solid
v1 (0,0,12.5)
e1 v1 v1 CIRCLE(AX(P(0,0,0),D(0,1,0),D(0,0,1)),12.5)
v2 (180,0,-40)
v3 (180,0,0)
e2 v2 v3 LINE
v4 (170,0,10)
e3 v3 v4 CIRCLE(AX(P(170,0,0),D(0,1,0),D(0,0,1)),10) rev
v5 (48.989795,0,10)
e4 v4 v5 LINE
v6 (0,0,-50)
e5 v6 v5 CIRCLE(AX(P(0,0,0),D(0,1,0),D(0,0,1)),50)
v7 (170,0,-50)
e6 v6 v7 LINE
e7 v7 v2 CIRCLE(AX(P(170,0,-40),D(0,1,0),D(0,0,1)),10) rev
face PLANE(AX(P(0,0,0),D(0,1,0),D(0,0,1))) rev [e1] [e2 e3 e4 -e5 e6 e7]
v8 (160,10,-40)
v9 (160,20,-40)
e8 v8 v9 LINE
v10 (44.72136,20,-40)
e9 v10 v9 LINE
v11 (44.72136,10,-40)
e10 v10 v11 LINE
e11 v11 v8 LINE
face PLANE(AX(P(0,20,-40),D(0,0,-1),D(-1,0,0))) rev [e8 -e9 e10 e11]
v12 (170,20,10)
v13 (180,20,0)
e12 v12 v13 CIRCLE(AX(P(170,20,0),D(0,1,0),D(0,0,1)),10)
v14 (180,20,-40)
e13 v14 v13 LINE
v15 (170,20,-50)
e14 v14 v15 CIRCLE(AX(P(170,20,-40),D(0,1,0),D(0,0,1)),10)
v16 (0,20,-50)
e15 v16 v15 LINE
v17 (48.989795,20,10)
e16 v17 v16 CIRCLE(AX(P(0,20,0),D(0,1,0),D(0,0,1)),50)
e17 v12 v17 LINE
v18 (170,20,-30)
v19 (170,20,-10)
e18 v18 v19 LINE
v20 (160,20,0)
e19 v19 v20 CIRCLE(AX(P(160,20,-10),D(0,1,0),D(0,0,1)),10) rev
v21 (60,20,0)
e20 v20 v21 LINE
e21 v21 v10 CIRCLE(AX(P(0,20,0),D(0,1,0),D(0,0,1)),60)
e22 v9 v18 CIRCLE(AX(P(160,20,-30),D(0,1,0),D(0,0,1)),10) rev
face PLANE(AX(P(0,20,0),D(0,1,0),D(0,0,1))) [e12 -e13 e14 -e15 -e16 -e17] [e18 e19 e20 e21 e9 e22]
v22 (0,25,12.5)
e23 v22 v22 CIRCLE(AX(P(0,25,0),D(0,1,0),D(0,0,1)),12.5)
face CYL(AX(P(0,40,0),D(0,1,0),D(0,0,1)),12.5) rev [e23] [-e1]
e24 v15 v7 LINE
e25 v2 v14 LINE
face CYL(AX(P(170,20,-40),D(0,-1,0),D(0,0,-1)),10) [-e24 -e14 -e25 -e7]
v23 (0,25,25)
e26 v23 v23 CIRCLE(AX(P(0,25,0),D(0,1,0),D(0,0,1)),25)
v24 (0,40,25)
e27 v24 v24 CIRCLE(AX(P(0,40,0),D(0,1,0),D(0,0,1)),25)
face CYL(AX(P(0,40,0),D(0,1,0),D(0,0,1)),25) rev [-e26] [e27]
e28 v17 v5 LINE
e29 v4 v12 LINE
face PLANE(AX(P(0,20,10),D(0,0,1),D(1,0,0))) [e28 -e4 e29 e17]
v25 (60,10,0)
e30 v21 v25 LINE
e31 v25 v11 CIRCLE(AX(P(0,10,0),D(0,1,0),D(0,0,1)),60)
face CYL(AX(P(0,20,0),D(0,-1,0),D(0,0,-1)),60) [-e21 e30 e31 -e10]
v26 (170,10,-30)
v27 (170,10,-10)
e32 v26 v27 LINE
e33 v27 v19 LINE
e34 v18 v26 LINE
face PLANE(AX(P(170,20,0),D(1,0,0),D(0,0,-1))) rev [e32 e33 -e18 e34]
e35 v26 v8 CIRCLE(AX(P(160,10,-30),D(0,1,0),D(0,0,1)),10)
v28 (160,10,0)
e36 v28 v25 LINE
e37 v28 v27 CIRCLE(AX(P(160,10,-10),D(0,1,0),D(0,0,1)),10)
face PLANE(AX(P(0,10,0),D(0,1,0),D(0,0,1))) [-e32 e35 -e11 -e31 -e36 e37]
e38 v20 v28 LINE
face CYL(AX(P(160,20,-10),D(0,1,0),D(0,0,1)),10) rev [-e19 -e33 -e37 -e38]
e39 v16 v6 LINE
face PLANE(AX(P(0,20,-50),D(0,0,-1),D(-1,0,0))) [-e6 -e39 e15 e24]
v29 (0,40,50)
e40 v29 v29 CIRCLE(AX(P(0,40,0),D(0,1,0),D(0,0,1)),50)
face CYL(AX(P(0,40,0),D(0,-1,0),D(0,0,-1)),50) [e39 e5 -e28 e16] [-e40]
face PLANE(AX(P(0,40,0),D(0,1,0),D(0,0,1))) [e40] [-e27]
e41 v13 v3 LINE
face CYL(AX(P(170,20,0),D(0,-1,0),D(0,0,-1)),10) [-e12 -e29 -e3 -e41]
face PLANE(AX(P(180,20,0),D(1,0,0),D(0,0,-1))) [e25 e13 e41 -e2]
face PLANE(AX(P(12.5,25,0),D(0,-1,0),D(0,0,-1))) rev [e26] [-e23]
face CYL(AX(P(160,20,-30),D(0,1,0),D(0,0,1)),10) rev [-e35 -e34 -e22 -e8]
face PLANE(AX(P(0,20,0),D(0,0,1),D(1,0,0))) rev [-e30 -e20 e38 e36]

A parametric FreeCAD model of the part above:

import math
import FreeCAD as App
import Part
import Sketcher

V = App.Vector
Q = App.Units.Quantity


def edges_at(feature, points):
    """Names of the edges that pass closest to the given points."""
    edges = feature.Shape.Edges
    near = lambda p: min(range(len(edges)), key=lambda i: edges[i].distToShape(Part.Vertex(*p))[0])
    return sorted({f"Edge{near(p) + 1}" for p in points})

doc = App.newDocument("Part")
body = doc.addObject("PartDesign::Body", "Body")

# Sketch on XZ plane
sketch1 = body.newObject("Sketcher::SketchObject", "Sketch")
sketch1.AttachmentSupport = (doc.getObject("XZ_Plane"), [""])
sketch1.MapMode = "FlatFace"
sketch1.addGeometry([
    Part.LineSegment(V(180, -50, 0), V(0, -50, 0)),  # 0
    Part.ArcOfCircle(Part.Circle(V(0, 0, 0), V(0, 0, 1), 50), math.radians(-90), math.radians(0)),  # 1
    Part.ArcOfCircle(Part.Circle(V(0, 0, 0), V(0, 0, 1), 50), math.radians(0), math.radians(11.54)),  # 2
    Part.LineSegment(V(49, 10, 0), V(180, 10, 0)),  # 3
    Part.LineSegment(V(180, 10, 0), V(180, -50, 0)),  # 4
    Part.LineSegment(V(170, 0, 0), V(60, 0, 0)),  # 5
    Part.ArcOfCircle(Part.Circle(V(0, 0, 0), V(0, 0, 1), 60), math.radians(-42), math.radians(0)),  # 6
    Part.LineSegment(V(45, -40, 0), V(170, -40, 0)),  # 7
    Part.LineSegment(V(170, -40, 0), V(170, 0, 0)),  # 8
], False)
sketch1.addConstraint([
    Sketcher.Constraint("Tangent", 0, 2, 1, 1),
    Sketcher.Constraint("Tangent", 1, 2, 2, 1),
    Sketcher.Constraint("Coincident", 2, 2, 3, 1),
    Sketcher.Constraint("Coincident", 3, 2, 4, 1),
    Sketcher.Constraint("Coincident", 4, 2, 0, 1),
    Sketcher.Constraint("Coincident", 5, 2, 6, 2),
    Sketcher.Constraint("Coincident", 6, 1, 7, 1),
    Sketcher.Constraint("Coincident", 7, 2, 8, 1),
    Sketcher.Constraint("Coincident", 8, 2, 5, 1),
    Sketcher.Constraint("Horizontal", 0),
    Sketcher.Constraint("Horizontal", 3),
    Sketcher.Constraint("Vertical", 4),
    Sketcher.Constraint("Horizontal", 5),
    Sketcher.Constraint("Horizontal", 7),
    Sketcher.Constraint("Vertical", 8),
    Sketcher.Constraint("Coincident", 1, 3, -1, 1),
    Sketcher.Constraint("Coincident", 6, 3, -1, 1),
    Sketcher.Constraint("Equal", 1, 2),
    Sketcher.Constraint("PointOnObject", 1, 2, -1),
    Sketcher.Constraint("PointOnObject", 5, 2, -1),
    Sketcher.Constraint("Radius", 1, Q("50 mm")),
    Sketcher.Constraint("Radius", 6, Q("60 mm")),
    Sketcher.Constraint("DistanceX", 0, 2, 0, 1, Q("180 mm")),
    Sketcher.Constraint("DistanceX", 5, 2, 5, 1, Q("110 mm")),
    Sketcher.Constraint("DistanceY", 4, 2, 4, 1, Q("60 mm")),
    Sketcher.Constraint("DistanceY", 8, 1, 8, 2, Q("40 mm")),
])
pad1 = body.newObject("PartDesign::Pad", "Pad")
pad1.Profile = sketch1
pad1.Length = 20
pad1.Reversed = True

# Sketch on XZ plane
sketch2 = body.newObject("Sketcher::SketchObject", "Sketch001")
sketch2.AttachmentSupport = (doc.getObject("XZ_Plane"), [""])
sketch2.MapMode = "FlatFace"
sketch2.addGeometry(Part.Circle(V(0, 0, 0), V(0, 0, 1), 50), False)
sketch2.addConstraint([
    Sketcher.Constraint("Coincident", 0, 3, -1, 1),
    Sketcher.Constraint("Diameter", 0, Q("100 mm")),
])
pad2 = body.newObject("PartDesign::Pad", "Pad001")
pad2.Profile = sketch2
pad2.Length = 40
pad2.Reversed = True

# Sketch on XZ plane
sketch3 = body.newObject("Sketcher::SketchObject", "Sketch002")
sketch3.AttachmentSupport = (doc.getObject("XZ_Plane"), [""])
sketch3.MapMode = "FlatFace"
sketch3.addGeometry([
    Part.LineSegment(V(170, -40, 0), V(45, -40, 0)),
    Part.ArcOfCircle(Part.Circle(V(0, 0, 0), V(0, 0, 1), 60), math.radians(-42), math.radians(0)),
    Part.LineSegment(V(60, 0, 0), V(170, 0, 0)),
    Part.LineSegment(V(170, 0, 0), V(170, -40, 0)),
], False)
sketch3.addConstraint([
    Sketcher.Constraint("Coincident", 0, 2, 1, 1),
    Sketcher.Constraint("Coincident", 1, 2, 2, 1),
    Sketcher.Constraint("Coincident", 2, 2, 3, 1),
    Sketcher.Constraint("Coincident", 3, 2, 0, 1),
    Sketcher.Constraint("Horizontal", 0),
    Sketcher.Constraint("Horizontal", 2),
    Sketcher.Constraint("Vertical", 3),
    Sketcher.Constraint("Coincident", 1, 3, -1, 1),
    Sketcher.Constraint("PointOnObject", 1, 2, -1),
    Sketcher.Constraint("Radius", 1, Q("60 mm")),
    Sketcher.Constraint("DistanceX", 2, 1, 2, 2, Q("110 mm")),
    Sketcher.Constraint("DistanceY", 3, 2, 3, 1, Q("40 mm")),
])
pad3 = body.newObject("PartDesign::Pad", "Pad002")
pad3.Profile = sketch3
pad3.Length = 10
pad3.Reversed = True
doc.recompute()

fillet = body.newObject("PartDesign::Fillet", "Fillet")
fillet.Base = (pad3, edges_at(pad3, [
    (170, 15, 0),
    (170, 15, -40),
    (180, 10, -50),
    (180, 10, 10),
]))
fillet.Radius = 10

# Sketch on XZ plane
sketch4 = body.newObject("Sketcher::SketchObject", "Sketch003")
sketch4.AttachmentSupport = (doc.getObject("XZ_Plane"), [""])
sketch4.MapMode = "FlatFace"
sketch4.AttachmentOffset = App.Placement(V(0, 0, -40), App.Rotation())
sketch4.addGeometry(Part.Circle(V(0, 0, 0), V(0, 0, 1), 12), False)
sketch4.addConstraint([
    Sketcher.Constraint("Coincident", 0, 3, -1, 1),
    Sketcher.Constraint("Diameter", 0, Q("25 mm")),
])
doc.recompute()
hole = body.newObject("PartDesign::Hole", "Hole")
hole.Profile = sketch4
hole.ThreadType = "None"
hole.Diameter = 25
hole.DepthType = "ThroughAll"
hole.HoleCutType = "Counterbore"
hole.HoleCutDiameter = 50
hole.HoleCutDepth = 15
hole.Reversed = True

doc.recompute()
